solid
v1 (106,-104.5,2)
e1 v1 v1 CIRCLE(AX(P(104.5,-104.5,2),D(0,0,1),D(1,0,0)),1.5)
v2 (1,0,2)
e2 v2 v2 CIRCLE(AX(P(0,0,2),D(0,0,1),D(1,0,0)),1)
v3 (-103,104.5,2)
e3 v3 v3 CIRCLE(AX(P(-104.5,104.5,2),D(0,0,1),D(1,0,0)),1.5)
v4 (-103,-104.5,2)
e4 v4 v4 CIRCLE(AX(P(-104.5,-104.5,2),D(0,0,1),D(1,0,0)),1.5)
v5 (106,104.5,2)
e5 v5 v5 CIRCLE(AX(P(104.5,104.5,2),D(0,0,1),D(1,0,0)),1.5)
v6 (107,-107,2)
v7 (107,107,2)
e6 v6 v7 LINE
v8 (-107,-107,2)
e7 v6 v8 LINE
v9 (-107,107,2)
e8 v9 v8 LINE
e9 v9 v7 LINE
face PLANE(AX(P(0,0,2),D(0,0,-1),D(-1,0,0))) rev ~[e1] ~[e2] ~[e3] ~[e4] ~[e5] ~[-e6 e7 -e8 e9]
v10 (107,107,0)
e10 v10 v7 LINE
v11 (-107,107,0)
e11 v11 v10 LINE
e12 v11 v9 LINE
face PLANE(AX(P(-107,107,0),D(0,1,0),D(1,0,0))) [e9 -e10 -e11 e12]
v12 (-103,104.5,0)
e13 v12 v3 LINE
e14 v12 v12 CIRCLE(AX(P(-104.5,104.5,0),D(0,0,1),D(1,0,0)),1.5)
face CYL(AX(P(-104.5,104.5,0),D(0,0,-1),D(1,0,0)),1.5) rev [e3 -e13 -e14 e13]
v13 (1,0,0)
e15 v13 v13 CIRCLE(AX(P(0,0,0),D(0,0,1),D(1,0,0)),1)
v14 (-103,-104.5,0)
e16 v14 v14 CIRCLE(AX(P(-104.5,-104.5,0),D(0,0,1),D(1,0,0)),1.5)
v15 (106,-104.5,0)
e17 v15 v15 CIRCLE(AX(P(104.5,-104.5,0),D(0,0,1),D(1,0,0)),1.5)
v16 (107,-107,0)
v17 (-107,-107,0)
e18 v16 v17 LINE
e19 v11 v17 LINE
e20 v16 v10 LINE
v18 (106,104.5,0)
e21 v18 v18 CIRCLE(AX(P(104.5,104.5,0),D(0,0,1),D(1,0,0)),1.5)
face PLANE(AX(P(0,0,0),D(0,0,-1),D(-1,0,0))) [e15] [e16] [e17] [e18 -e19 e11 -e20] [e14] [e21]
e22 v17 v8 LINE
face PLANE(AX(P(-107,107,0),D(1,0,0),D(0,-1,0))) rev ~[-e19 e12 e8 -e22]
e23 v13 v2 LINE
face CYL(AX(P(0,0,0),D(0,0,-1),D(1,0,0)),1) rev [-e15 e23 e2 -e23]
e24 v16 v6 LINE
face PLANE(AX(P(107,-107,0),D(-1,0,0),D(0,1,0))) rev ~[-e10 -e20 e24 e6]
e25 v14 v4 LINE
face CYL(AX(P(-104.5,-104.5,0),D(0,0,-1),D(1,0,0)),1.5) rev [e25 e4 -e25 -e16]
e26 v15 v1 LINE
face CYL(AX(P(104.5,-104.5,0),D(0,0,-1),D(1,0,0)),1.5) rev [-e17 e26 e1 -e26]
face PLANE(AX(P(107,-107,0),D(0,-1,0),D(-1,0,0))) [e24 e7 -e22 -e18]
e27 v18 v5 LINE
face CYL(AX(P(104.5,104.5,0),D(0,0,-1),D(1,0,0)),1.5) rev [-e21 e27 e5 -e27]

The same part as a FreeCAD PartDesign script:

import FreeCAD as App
import Part
import Sketcher

doc = App.newDocument("Part")
body = doc.addObject("PartDesign::Body", "Body")

# Sketch on XY plane
sketch1 = body.newObject("Sketcher::SketchObject", "Sketch")
sketch1.AttachmentSupport = (doc.getObject("XY_Plane"), [""])
sketch1.MapMode = "FlatFace"
sketch1.addGeometry(Part.LineSegment(App.Vector(107, 107, 0), App.Vector(-107, 107, 0)), False)
sketch1.addGeometry(Part.LineSegment(App.Vector(-107, 107, 0), App.Vector(-107, -107, 0)), False)
sketch1.addGeometry(Part.LineSegment(App.Vector(-107, -107, 0), App.Vector(107, -107, 0)), False)
sketch1.addGeometry(Part.LineSegment(App.Vector(107, -107, 0), App.Vector(107, 107, 0)), False)
sketch1.addGeometry(Part.Circle(App.Vector(-104.5, -104.5, 0), App.Vector(0, 0, 1), 1.5), False)
sketch1.addGeometry(Part.Circle(App.Vector(0, 0, 0), App.Vector(0, 0, 1), 1), False)
sketch1.addGeometry(Part.Circle(App.Vector(104.5, -104.5, 0), App.Vector(0, 0, 1), 1.5), False)
sketch1.addGeometry(Part.Circle(App.Vector(-104.5, 104.5, 0), App.Vector(0, 0, 1), 1.5), False)
sketch1.addGeometry(Part.Circle(App.Vector(104.5, 104.5, 0), App.Vector(0, 0, 1), 1.5), False)
sketch1.addConstraint(Sketcher.Constraint("Coincident", 0, 2, 1, 1))
sketch1.addConstraint(Sketcher.Constraint("Coincident", 1, 2, 2, 1))
sketch1.addConstraint(Sketcher.Constraint("Coincident", 2, 2, 3, 1))
sketch1.addConstraint(Sketcher.Constraint("Coincident", 3, 2, 0, 1))
sketch1.addConstraint(Sketcher.Constraint("Horizontal", 0))
sketch1.addConstraint(Sketcher.Constraint("Vertical", 1))
sketch1.addConstraint(Sketcher.Constraint("Horizontal", 2))
sketch1.addConstraint(Sketcher.Constraint("Vertical", 3))
sketch1.addConstraint(Sketcher.Constraint("Coincident", 5, 3, -1, 1))
sketch1.addConstraint(Sketcher.Constraint("Equal", 4, 6))
sketch1.addConstraint(Sketcher.Constraint("Equal", 6, 7))
sketch1.addConstraint(Sketcher.Constraint("Equal", 7, 8))
sketch1.addConstraint(Sketcher.Constraint("Symmetric", 6, 3, 7, 3, -1, 1))
sketch1.addConstraint(Sketcher.Constraint("Symmetric", 4, 3, 8, 3, -1, 1))
sketch1.addConstraint(Sketcher.Constraint("Symmetric", 0, 2, 2, 2, -1, 1))
sketch1.addConstraint(Sketcher.Constraint("Symmetric", 4, 3, 6, 3, -2))
sketch1.addConstraint(Sketcher.Constraint("Equal", 2, 1))
sketch1.addConstraint(Sketcher.Constraint("Diameter", 4, 3.0))
sketch1.addConstraint(Sketcher.Constraint("Diameter", 5, 2.0))
sketch1.addConstraint(Sketcher.Constraint("DistanceX", 0, 2, -1, 1, 107.0))
sketch1.addConstraint(Sketcher.Constraint("DistanceX", 4, 3, -1, 1, 104.5))
sketch1.addConstraint(Sketcher.Constraint("DistanceY", 4, 3, -1, 1, 104.5))
pad1 = body.newObject("PartDesign::Pad", "Pad")
pad1.Profile = sketch1
pad1.Length = 2

doc.recompute()
